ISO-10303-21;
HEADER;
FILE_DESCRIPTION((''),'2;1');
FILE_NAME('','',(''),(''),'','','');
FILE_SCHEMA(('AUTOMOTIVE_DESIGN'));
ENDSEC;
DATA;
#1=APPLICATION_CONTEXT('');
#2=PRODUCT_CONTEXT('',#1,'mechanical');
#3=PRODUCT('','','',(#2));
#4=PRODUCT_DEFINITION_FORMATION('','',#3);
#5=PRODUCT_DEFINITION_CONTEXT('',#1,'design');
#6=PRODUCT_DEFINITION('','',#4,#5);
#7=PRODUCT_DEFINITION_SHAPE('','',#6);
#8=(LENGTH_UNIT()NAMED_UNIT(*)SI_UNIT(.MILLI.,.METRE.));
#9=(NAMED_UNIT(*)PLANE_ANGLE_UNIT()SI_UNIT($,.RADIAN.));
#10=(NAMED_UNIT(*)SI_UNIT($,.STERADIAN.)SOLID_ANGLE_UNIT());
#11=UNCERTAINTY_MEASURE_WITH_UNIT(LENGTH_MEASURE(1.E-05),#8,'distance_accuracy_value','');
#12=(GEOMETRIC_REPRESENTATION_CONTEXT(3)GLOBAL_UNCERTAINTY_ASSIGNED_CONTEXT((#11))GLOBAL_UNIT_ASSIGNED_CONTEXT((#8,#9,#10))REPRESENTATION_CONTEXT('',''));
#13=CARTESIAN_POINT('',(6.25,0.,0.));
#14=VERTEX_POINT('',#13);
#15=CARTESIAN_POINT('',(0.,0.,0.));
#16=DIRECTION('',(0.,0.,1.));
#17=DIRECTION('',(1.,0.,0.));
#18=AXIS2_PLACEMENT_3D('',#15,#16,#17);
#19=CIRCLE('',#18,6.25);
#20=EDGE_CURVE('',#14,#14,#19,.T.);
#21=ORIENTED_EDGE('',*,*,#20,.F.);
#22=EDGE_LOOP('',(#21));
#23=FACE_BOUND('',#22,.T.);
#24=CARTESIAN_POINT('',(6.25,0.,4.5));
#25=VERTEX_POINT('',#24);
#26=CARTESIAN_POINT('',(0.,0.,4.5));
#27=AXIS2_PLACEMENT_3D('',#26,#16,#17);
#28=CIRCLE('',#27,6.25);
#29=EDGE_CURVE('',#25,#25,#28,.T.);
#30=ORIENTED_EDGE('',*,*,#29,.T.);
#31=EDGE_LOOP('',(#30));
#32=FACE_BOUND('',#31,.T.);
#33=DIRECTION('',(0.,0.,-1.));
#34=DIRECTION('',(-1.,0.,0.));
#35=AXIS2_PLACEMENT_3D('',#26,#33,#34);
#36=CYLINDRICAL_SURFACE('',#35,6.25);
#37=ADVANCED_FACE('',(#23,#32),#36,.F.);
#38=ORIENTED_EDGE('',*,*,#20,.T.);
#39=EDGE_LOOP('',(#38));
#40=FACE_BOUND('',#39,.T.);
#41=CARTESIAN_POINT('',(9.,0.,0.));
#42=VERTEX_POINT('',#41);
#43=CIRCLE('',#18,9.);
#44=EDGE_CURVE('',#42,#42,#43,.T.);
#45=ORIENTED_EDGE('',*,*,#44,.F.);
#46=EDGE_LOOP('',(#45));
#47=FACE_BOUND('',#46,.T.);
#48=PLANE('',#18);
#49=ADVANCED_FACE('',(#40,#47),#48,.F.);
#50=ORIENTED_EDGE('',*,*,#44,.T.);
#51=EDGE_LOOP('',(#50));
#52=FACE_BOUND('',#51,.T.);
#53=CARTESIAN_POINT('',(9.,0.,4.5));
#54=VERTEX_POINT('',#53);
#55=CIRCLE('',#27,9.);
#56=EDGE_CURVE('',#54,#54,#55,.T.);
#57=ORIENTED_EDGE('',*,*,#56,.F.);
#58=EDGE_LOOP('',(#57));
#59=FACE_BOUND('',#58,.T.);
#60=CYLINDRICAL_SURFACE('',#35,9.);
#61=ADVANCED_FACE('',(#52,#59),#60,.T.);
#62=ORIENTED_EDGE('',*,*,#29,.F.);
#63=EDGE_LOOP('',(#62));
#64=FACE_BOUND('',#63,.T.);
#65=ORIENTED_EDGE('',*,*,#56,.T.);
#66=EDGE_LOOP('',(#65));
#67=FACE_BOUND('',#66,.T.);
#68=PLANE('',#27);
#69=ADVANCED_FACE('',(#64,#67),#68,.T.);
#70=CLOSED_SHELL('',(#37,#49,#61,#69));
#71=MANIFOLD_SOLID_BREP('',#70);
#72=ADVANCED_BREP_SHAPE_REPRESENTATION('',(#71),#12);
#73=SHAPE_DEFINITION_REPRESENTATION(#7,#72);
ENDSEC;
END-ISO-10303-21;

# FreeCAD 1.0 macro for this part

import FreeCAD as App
import Part
import Sketcher

doc = App.newDocument("Part")
params = doc.addObject("Spreadsheet::Sheet", "Params")
for row, (alias, value) in enumerate([
    ("sketch1_diameter", "18 mm"),
    ("sketch1_diameter2", "12.5 mm"),
    ("pad1_length", "4.5 mm"),
], start=1):
    params.set(f"A{row}", alias)
    params.set(f"B{row}", "=" + value)
    params.setAlias(f"B{row}", alias)

body = doc.addObject("PartDesign::Body", "Body")

# Sketch on XY plane
sketch1 = doc.addObject("Sketcher::SketchObject", "Sketch")
body.addObject(sketch1)
sketch1.AttachmentSupport = (doc.XY_Plane, [""])
sketch1.MapMode = "FlatFace"
sketch1.addGeometry([
    Part.Circle(App.Vector(0, 0, 0), App.Vector(0, 0, 1), 9),
    Part.Circle(App.Vector(0, 0, 0), App.Vector(0, 0, 1), 6),
], False)
sketch1.addConstraint([
    Sketcher.Constraint("Coincident", 0, 3, -1, 1),
    Sketcher.Constraint("Coincident", 1, 3, -1, 1),
    Sketcher.Constraint("Diameter", 0, 18.0),
    Sketcher.Constraint("Diameter", 1, 12.5),
])
sketch1.setExpression("Constraints[2]", "Params.sketch1_diameter")
sketch1.setExpression("Constraints[3]", "Params.sketch1_diameter2")
pad1 = doc.addObject("PartDesign::Pad", "Pad")
body.addObject(pad1)
pad1.Profile = sketch1
pad1.setExpression("Length", "Params.pad1_length")

doc.recompute()
